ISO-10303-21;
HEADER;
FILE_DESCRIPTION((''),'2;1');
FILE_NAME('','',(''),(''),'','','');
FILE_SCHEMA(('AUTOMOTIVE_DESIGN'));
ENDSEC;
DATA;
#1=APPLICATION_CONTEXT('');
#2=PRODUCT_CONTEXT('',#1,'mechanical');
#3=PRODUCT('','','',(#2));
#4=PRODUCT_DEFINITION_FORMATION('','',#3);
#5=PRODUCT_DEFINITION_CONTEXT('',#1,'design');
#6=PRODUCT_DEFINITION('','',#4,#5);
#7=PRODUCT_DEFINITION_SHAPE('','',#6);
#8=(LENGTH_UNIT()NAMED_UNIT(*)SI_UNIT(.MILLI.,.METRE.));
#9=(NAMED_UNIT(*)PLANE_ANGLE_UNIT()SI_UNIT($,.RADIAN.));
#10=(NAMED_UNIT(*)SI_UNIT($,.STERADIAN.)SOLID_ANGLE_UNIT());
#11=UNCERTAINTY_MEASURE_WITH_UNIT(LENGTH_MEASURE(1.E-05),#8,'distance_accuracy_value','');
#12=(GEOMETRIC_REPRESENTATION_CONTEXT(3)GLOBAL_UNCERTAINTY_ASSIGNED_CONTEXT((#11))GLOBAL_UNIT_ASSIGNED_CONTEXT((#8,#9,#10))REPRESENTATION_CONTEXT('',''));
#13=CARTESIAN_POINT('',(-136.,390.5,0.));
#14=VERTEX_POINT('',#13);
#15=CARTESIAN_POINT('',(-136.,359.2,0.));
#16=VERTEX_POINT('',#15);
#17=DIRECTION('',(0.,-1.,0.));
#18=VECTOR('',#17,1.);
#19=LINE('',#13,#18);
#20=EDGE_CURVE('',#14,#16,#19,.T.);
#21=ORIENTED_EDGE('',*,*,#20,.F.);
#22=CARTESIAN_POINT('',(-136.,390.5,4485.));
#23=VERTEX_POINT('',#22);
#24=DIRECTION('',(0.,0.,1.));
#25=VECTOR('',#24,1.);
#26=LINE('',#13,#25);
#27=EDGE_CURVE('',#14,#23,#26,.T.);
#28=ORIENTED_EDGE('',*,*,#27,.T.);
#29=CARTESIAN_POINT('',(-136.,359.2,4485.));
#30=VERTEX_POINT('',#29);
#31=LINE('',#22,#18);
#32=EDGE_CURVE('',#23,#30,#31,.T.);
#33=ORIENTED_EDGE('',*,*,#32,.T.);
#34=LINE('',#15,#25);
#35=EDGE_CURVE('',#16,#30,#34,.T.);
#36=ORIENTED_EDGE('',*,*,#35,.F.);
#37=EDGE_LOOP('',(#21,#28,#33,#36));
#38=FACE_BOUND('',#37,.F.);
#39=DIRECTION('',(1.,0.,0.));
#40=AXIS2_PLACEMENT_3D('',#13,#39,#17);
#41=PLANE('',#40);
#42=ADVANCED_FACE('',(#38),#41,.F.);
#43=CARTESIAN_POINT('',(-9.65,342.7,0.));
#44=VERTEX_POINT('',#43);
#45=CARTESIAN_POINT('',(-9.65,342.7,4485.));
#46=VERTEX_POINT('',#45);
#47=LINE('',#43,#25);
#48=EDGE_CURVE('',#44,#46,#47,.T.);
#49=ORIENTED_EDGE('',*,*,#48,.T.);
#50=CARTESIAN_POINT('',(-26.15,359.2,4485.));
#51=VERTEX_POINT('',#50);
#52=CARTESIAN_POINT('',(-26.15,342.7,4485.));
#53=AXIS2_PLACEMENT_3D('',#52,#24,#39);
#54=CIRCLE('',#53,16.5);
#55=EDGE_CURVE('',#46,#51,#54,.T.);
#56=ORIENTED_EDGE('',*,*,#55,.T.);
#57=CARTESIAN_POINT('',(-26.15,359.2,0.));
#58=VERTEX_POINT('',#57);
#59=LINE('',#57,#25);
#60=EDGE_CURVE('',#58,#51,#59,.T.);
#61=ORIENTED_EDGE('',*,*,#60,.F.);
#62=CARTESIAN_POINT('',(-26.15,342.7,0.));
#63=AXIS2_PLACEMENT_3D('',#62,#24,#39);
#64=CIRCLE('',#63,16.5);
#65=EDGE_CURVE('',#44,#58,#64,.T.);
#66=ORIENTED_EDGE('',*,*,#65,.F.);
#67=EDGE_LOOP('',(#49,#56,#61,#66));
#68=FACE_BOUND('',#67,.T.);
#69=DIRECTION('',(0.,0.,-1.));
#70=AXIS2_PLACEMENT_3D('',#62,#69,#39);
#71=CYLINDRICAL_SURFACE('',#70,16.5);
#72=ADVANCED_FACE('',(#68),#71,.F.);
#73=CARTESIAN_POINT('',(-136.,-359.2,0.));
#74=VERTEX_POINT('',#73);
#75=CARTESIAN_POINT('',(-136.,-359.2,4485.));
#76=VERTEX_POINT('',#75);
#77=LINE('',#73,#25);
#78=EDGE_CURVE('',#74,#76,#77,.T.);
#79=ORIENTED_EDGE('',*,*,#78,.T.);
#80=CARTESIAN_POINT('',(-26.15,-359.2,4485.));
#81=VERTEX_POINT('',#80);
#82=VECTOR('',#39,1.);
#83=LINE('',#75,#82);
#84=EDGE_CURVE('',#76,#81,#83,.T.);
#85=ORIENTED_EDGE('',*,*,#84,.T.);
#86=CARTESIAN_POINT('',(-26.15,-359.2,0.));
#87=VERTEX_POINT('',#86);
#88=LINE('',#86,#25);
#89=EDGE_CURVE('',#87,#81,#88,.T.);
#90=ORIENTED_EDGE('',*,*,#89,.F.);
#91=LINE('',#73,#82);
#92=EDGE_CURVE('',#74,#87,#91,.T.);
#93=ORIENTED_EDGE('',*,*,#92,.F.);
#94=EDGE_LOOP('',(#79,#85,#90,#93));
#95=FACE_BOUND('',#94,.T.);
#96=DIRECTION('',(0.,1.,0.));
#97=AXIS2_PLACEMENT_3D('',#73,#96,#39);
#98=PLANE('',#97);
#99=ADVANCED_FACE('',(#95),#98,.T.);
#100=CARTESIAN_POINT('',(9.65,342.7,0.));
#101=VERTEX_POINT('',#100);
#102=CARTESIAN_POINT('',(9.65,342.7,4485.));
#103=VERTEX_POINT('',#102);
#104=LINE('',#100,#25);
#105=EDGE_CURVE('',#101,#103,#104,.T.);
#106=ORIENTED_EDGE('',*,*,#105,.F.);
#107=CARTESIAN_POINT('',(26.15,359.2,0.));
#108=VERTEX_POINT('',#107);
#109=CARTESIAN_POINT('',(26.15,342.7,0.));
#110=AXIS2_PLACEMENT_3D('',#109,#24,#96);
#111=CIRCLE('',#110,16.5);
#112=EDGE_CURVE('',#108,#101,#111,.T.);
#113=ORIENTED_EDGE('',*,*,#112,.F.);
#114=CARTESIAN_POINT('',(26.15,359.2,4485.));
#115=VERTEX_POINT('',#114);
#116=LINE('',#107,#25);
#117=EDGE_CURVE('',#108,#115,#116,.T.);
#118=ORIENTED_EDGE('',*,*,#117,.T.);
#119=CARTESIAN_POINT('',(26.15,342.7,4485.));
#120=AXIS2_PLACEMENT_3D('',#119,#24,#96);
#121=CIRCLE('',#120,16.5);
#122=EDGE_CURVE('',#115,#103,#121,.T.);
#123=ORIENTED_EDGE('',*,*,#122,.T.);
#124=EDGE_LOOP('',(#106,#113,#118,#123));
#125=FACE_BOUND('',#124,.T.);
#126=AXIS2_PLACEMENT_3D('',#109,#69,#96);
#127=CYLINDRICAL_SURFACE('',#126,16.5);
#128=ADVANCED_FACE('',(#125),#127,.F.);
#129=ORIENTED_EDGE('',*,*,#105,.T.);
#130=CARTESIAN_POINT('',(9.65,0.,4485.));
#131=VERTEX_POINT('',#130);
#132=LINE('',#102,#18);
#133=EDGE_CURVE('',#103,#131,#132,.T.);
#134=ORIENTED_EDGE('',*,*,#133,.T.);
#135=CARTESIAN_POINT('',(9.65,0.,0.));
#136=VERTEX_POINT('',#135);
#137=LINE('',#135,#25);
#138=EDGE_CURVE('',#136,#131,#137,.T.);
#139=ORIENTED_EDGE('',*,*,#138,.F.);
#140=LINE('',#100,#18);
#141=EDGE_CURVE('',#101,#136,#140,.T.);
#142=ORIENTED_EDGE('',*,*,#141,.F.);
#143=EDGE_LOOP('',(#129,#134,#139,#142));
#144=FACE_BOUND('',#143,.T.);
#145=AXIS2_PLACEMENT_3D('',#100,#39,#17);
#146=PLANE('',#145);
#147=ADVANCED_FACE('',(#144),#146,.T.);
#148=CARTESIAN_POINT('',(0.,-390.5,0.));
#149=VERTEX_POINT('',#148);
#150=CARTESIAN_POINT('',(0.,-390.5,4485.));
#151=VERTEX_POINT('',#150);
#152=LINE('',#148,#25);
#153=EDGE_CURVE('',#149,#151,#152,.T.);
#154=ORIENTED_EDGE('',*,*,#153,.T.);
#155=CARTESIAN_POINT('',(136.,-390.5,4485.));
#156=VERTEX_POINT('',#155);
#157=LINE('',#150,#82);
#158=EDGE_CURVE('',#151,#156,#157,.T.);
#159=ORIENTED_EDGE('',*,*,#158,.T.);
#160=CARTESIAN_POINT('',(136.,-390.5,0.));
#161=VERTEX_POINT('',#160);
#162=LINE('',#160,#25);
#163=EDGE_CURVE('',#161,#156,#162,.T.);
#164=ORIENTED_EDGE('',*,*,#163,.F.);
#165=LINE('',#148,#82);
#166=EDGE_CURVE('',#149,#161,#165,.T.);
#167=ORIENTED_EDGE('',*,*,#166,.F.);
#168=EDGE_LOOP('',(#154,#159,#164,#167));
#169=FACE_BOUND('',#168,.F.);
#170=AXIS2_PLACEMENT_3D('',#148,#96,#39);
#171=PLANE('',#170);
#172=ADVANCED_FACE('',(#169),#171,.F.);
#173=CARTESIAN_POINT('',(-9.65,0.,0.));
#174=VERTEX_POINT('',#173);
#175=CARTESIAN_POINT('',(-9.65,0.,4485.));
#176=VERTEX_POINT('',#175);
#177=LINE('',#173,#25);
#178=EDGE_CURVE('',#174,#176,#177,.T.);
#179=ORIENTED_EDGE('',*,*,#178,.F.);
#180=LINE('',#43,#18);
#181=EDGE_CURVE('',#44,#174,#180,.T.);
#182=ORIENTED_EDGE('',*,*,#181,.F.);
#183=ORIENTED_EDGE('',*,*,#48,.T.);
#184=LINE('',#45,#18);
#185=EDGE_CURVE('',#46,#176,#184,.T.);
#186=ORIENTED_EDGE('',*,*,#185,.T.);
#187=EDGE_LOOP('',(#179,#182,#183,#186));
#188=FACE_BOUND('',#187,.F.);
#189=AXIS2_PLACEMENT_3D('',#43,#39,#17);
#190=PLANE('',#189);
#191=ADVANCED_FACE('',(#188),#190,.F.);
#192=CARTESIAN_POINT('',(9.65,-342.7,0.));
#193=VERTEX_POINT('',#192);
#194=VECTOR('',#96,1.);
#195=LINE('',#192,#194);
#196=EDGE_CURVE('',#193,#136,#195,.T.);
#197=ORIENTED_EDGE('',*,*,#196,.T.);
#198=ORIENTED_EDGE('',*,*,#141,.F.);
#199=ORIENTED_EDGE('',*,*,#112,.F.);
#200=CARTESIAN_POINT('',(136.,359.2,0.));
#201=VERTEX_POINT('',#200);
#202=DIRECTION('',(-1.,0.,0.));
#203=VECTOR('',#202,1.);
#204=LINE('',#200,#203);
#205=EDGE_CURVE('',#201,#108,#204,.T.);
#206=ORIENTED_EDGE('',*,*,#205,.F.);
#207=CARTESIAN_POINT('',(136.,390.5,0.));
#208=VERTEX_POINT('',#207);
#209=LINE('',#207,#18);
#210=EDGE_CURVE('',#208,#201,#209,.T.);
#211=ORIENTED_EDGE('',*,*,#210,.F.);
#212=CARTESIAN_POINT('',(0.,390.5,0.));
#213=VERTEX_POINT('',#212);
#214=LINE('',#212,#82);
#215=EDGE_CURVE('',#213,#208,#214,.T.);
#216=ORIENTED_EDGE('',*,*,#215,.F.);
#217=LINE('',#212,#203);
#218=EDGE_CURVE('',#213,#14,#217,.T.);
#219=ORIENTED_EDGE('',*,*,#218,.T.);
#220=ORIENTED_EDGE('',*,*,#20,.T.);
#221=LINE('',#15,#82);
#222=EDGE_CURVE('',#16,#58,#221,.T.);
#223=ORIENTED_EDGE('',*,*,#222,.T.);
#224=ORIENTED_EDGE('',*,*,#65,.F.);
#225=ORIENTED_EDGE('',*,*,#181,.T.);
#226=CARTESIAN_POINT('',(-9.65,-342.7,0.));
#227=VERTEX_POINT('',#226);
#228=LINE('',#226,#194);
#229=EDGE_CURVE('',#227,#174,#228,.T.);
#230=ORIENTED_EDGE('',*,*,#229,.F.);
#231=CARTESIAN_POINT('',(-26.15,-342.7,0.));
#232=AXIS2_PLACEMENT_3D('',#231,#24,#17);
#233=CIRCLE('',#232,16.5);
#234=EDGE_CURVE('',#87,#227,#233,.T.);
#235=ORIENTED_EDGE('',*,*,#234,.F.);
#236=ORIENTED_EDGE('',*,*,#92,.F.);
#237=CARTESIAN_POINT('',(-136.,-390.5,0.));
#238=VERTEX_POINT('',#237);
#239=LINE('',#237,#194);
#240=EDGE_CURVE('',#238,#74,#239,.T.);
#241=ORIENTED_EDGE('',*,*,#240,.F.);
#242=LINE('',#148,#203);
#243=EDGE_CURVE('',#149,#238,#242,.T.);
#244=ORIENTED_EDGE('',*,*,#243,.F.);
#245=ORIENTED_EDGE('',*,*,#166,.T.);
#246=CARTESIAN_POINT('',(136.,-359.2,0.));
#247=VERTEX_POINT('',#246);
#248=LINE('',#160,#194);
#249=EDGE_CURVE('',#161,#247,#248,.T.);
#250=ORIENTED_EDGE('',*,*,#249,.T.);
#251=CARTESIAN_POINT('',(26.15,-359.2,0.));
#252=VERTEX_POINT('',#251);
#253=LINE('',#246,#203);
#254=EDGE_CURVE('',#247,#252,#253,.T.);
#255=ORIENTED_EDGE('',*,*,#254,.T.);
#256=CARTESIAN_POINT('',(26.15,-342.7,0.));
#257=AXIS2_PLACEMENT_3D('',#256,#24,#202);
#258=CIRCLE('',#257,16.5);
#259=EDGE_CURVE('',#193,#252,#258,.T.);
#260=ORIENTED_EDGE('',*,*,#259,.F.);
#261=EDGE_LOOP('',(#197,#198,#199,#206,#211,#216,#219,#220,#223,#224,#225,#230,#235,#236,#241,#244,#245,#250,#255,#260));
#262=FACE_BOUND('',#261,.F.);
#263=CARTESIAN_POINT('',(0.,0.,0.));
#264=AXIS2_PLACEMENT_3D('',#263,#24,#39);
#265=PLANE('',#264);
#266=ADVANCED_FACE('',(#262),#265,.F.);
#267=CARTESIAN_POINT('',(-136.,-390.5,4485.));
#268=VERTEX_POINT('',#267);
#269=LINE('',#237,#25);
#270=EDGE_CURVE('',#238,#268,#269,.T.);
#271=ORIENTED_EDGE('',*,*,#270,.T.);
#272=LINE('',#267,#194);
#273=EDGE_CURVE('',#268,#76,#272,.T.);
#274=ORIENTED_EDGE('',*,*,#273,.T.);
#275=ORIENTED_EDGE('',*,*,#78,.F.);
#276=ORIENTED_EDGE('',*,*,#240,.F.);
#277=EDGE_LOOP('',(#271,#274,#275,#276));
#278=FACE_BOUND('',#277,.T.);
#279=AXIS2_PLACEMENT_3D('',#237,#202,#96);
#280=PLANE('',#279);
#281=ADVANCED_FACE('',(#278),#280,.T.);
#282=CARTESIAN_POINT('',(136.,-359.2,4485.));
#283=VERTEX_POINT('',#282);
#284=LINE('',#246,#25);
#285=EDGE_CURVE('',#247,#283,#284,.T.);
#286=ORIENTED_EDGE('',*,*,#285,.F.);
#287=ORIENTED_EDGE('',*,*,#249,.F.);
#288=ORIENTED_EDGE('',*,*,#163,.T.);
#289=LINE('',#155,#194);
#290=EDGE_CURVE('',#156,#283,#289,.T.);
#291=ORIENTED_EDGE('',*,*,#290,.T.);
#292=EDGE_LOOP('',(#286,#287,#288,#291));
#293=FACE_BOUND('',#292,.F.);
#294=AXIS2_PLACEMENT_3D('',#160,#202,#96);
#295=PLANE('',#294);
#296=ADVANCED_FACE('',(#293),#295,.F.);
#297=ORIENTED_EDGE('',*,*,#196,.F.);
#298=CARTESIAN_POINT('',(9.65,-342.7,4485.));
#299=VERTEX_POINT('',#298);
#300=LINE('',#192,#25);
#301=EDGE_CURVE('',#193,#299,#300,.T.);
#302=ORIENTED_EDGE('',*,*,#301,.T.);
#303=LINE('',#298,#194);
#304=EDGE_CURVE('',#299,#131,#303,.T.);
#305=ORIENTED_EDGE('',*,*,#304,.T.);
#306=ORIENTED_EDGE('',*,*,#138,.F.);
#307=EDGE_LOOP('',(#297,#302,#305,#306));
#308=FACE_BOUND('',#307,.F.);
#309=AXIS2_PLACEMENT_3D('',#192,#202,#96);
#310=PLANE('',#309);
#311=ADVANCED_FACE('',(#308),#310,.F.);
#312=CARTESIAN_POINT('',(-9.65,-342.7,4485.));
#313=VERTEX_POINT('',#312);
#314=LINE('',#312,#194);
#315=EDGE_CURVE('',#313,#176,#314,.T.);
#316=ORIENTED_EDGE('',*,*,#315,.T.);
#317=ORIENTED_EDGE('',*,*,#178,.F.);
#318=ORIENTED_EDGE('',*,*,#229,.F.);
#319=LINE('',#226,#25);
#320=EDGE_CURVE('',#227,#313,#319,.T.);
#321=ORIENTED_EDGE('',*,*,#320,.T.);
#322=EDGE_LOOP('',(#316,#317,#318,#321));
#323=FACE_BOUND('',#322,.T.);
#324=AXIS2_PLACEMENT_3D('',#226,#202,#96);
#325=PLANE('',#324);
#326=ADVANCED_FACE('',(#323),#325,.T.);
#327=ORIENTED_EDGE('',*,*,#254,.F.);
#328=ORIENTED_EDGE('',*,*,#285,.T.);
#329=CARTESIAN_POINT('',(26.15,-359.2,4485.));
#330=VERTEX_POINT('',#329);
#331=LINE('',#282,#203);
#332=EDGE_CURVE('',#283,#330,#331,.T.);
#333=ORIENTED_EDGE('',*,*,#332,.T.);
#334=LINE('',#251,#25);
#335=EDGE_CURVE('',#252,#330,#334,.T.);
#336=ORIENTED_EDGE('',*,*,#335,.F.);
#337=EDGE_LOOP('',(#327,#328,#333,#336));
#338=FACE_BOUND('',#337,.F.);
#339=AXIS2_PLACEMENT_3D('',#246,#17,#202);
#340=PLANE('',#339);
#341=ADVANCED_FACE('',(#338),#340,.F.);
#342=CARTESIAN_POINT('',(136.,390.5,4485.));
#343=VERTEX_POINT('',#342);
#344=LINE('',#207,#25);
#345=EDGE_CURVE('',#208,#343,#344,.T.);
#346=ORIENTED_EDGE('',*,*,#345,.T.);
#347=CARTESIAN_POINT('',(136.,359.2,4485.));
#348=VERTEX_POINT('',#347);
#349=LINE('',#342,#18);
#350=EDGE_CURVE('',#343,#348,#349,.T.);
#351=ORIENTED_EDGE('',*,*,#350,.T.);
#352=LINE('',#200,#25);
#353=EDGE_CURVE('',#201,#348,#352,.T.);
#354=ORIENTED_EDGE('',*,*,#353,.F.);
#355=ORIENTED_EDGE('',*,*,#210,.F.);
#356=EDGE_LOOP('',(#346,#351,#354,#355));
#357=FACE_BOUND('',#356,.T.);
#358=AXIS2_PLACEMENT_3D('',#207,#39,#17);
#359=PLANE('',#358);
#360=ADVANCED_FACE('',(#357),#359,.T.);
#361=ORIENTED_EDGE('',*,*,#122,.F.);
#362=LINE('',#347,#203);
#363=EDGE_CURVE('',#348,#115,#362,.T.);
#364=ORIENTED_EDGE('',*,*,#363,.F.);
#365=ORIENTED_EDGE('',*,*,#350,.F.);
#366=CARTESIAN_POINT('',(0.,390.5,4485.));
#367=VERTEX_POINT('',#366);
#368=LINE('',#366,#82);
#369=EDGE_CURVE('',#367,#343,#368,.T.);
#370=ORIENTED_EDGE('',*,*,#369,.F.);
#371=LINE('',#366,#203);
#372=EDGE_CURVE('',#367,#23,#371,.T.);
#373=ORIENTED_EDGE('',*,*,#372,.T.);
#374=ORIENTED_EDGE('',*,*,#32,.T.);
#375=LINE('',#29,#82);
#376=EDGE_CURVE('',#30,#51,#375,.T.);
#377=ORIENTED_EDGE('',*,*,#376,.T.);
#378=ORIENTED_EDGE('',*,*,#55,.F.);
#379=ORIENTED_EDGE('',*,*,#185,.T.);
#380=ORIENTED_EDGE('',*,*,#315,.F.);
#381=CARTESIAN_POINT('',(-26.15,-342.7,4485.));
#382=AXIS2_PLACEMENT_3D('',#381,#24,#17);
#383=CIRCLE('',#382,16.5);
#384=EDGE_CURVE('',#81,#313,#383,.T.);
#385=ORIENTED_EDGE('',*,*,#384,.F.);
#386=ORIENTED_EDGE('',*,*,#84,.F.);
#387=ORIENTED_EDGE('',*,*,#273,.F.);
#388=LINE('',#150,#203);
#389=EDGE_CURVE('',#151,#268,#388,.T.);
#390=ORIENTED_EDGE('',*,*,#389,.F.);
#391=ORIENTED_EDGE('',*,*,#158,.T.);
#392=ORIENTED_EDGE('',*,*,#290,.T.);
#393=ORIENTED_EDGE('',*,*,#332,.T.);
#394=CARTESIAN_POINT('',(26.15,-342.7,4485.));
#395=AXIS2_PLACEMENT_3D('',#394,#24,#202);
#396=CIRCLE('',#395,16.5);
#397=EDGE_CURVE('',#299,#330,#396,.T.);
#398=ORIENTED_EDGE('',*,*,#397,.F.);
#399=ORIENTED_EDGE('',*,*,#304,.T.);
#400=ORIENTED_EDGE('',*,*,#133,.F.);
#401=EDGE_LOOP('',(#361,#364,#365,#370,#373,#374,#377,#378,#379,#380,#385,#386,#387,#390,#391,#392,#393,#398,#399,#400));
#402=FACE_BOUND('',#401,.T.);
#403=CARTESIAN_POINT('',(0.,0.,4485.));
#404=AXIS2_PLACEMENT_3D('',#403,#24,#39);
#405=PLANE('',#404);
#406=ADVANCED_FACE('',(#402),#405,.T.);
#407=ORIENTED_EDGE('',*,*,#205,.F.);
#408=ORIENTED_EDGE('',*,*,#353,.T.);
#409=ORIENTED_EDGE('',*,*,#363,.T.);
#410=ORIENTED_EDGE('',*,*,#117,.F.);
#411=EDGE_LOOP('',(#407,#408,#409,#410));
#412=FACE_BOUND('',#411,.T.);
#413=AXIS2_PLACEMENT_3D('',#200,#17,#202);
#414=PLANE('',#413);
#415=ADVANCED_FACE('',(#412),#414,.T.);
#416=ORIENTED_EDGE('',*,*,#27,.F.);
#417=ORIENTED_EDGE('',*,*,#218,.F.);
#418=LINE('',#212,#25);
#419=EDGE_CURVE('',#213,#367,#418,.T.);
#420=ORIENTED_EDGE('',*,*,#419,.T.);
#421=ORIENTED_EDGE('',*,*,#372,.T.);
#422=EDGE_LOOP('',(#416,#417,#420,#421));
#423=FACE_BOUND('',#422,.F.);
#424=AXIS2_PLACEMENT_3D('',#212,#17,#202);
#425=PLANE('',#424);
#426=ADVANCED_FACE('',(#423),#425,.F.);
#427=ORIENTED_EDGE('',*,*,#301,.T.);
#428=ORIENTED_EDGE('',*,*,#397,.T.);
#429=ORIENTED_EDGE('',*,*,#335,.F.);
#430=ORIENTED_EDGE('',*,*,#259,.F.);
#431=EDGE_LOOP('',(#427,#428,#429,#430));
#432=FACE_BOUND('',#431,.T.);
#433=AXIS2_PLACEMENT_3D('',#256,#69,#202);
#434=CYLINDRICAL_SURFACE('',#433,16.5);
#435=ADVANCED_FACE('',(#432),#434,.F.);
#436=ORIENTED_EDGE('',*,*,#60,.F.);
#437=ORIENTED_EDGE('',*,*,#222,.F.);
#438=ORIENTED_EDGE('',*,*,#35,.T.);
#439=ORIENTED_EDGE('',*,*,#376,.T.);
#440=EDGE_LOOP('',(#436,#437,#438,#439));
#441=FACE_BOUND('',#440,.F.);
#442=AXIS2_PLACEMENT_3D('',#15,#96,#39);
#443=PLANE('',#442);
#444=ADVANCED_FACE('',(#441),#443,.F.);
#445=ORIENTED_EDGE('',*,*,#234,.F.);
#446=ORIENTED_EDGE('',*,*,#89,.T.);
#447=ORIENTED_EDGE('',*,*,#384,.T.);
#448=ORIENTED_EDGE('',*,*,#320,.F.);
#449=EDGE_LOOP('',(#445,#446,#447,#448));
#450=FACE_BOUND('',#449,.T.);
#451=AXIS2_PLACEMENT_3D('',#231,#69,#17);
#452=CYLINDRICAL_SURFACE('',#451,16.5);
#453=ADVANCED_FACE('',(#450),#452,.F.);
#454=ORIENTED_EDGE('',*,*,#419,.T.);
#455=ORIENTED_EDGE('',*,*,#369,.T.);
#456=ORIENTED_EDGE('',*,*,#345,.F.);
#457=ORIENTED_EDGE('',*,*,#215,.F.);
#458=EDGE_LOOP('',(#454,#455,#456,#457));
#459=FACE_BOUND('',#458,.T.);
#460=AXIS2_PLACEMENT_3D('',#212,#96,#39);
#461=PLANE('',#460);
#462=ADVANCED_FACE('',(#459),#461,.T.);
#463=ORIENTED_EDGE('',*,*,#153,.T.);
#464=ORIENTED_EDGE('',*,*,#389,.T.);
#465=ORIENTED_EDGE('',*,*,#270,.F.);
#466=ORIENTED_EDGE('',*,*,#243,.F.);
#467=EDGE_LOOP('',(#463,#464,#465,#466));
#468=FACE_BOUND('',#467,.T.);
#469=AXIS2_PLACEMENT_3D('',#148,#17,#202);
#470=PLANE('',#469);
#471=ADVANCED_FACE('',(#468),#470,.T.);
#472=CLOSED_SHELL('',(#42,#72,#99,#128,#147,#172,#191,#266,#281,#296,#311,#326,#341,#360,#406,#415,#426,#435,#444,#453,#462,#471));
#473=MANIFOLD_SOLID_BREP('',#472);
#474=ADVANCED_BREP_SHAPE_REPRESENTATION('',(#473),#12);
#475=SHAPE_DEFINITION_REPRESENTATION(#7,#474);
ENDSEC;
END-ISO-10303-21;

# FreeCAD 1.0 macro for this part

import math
import FreeCAD as App
import Part
import Sketcher
from FreeCAD import Vector

doc = App.newDocument("Part")
body = doc.addObject("PartDesign::Body", "Body")

# Sketch on XY plane
sketch1 = body.newObject("Sketcher::SketchObject", "Sketch")
sketch1.AttachmentSupport = (doc.getObject("XY_Plane"), [""])
sketch1.MapMode = "FlatFace"
sketch1.addGeometry(Part.LineSegment(Vector(-136, -359, 0), Vector(-136, -390, 0)), False)
sketch1.addGeometry(Part.LineSegment(Vector(-136, -390, 0), Vector(136, -390, 0)), False)
sketch1.addGeometry(Part.LineSegment(Vector(136, -390, 0), Vector(136, -359, 0)), False)
sketch1.addGeometry(Part.LineSegment(Vector(136, -359, 0), Vector(26, -359, 0)), False)
sketch1.addGeometry(Part.ArcOfCircle(Part.Circle(Vector(26, -343, 0), Vector(0, 0, 1), 16), math.radians(180), math.radians(270)), False)
sketch1.addGeometry(Part.LineSegment(Vector(10, -343, 0), Vector(10, 343, 0)), False)
sketch1.addGeometry(Part.ArcOfCircle(Part.Circle(Vector(26, 343, 0), Vector(0, 0, 1), 16), math.radians(90), math.radians(180)), False)
sketch1.addGeometry(Part.LineSegment(Vector(26, 359, 0), Vector(136, 359, 0)), False)
sketch1.addGeometry(Part.LineSegment(Vector(136, 359, 0), Vector(136, 390, 0)), False)
sketch1.addGeometry(Part.LineSegment(Vector(136, 390, 0), Vector(-136, 390, 0)), False)
sketch1.addGeometry(Part.LineSegment(Vector(-136, 390, 0), Vector(-136, 359, 0)), False)
sketch1.addGeometry(Part.LineSegment(Vector(-136, 359, 0), Vector(-26, 359, 0)), False)
sketch1.addGeometry(Part.ArcOfCircle(Part.Circle(Vector(-26, 343, 0), Vector(0, 0, 1), 16), math.radians(0), math.radians(90)), False)
sketch1.addGeometry(Part.LineSegment(Vector(-10, 343, 0), Vector(-10, -343, 0)), False)
sketch1.addGeometry(Part.ArcOfCircle(Part.Circle(Vector(-26, -343, 0), Vector(0, 0, 1), 16), math.radians(-90), math.radians(0)), False)
sketch1.addGeometry(Part.LineSegment(Vector(-26, -359, 0), Vector(-136, -359, 0)), False)
sketch1.addConstraint(Sketcher.Constraint("Coincident", 0, 2, 1, 1))
sketch1.addConstraint(Sketcher.Constraint("Coincident", 1, 2, 2, 1))
sketch1.addConstraint(Sketcher.Constraint("Coincident", 2, 2, 3, 1))
sketch1.addConstraint(Sketcher.Constraint("Tangent", 3, 2, 4, 2))
sketch1.addConstraint(Sketcher.Constraint("Tangent", 4, 1, 5, 1))
sketch1.addConstraint(Sketcher.Constraint("Tangent", 5, 2, 6, 2))
sketch1.addConstraint(Sketcher.Constraint("Tangent", 6, 1, 7, 1))
sketch1.addConstraint(Sketcher.Constraint("Coincident", 7, 2, 8, 1))
sketch1.addConstraint(Sketcher.Constraint("Coincident", 8, 2, 9, 1))
sketch1.addConstraint(Sketcher.Constraint("Coincident", 9, 2, 10, 1))
sketch1.addConstraint(Sketcher.Constraint("Coincident", 10, 2, 11, 1))
sketch1.addConstraint(Sketcher.Constraint("Tangent", 11, 2, 12, 2))
sketch1.addConstraint(Sketcher.Constraint("Tangent", 12, 1, 13, 1))
sketch1.addConstraint(Sketcher.Constraint("Tangent", 13, 2, 14, 2))
sketch1.addConstraint(Sketcher.Constraint("Tangent", 14, 1, 15, 1))
sketch1.addConstraint(Sketcher.Constraint("Coincident", 15, 2, 0, 1))
sketch1.addConstraint(Sketcher.Constraint("Vertical", 0))
sketch1.addConstraint(Sketcher.Constraint("Horizontal", 1))
sketch1.addConstraint(Sketcher.Constraint("Vertical", 2))
sketch1.addConstraint(Sketcher.Constraint("Horizontal", 3))
sketch1.addConstraint(Sketcher.Constraint("Vertical", 5))
sketch1.addConstraint(Sketcher.Constraint("Horizontal", 7))
sketch1.addConstraint(Sketcher.Constraint("Vertical", 8))
sketch1.addConstraint(Sketcher.Constraint("Horizontal", 9))
sketch1.addConstraint(Sketcher.Constraint("Vertical", 10))
sketch1.addConstraint(Sketcher.Constraint("Horizontal", 11))
sketch1.addConstraint(Sketcher.Constraint("Vertical", 13))
sketch1.addConstraint(Sketcher.Constraint("Horizontal", 15))
sketch1.addConstraint(Sketcher.Constraint("Equal", 4, 6))
sketch1.addConstraint(Sketcher.Constraint("Equal", 6, 12))
sketch1.addConstraint(Sketcher.Constraint("Equal", 12, 14))
sketch1.addConstraint(Sketcher.Constraint("Symmetric", 4, 3, 12, 3, -1, 1))
sketch1.addConstraint(Sketcher.Constraint("Symmetric", 0, 2, 8, 2, -1, 1))
sketch1.addConstraint(Sketcher.Constraint("Symmetric", 7, 2, 10, 2, -2))
sketch1.addConstraint(Sketcher.Constraint("Symmetric", 2, 2, 15, 2, -2))
sketch1.addConstraint(Sketcher.Constraint("Radius", 4, 16.5))
sketch1.addConstraint(Sketcher.Constraint("DistanceY", 0, 2, 0, 1, 31.3))
sketch1.addConstraint(Sketcher.Constraint("DistanceX", 0, 2, -1, 1, 136.0))
sketch1.addConstraint(Sketcher.Constraint("DistanceY", 0, 2, -1, 1, 390.5))
sketch1.addConstraint(Sketcher.Constraint("DistanceX", -1, 1, 4, 1, 9.65))
pad1 = body.newObject("PartDesign::Pad", "Pad")
pad1.Profile = sketch1
pad1.Length = 4485

doc.recompute()
